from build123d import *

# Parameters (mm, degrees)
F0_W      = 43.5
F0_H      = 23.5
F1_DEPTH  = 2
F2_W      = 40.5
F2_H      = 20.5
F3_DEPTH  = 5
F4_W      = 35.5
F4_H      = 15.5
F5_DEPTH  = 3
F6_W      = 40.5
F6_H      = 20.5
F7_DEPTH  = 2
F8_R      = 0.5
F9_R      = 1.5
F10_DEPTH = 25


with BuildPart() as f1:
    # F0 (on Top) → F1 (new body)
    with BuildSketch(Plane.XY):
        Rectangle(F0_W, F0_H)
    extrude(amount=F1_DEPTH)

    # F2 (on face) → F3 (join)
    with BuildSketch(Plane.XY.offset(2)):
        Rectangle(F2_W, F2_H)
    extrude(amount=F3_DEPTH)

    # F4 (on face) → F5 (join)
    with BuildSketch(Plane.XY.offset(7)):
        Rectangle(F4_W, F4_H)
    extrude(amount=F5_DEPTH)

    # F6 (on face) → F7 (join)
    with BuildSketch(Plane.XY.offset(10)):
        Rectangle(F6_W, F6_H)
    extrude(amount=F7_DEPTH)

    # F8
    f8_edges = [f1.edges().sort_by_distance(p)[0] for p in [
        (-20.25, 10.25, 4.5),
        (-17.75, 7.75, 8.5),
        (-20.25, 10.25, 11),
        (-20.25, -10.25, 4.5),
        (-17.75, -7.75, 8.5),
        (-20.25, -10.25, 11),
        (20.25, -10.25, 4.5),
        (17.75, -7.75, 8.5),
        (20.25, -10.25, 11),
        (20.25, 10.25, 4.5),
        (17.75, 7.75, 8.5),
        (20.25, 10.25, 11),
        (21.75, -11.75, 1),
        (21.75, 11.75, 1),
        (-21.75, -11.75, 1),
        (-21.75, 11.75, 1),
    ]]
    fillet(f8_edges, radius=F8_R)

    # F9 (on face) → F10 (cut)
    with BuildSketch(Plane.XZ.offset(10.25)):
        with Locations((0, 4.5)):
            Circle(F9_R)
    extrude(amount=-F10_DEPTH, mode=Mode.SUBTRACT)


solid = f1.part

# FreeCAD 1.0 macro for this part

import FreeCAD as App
import Part
import Sketcher
Q = App.Units.Quantity


def edges_at(feature, points):
    """Names of the edges that pass closest to the given points."""
    edges = feature.Shape.Edges
    near = lambda p: min(range(len(edges)), key=lambda i: edges[i].distToShape(Part.Vertex(*p))[0])
    return sorted({f"Edge{near(p) + 1}" for p in points})

doc = App.newDocument("Part")
body = doc.addObject("PartDesign::Body", "Body")

# Sketch on XY plane
sketch1 = doc.addObject("Sketcher::SketchObject", "Sketch")
body.addObject(sketch1)
sketch1.AttachmentSupport = (doc.XY_Plane, [""])
sketch1.MapMode = "FlatFace"
sketch1.addGeometry([
    Part.LineSegment(App.Vector(-22, 12, 0), App.Vector(-22, -12, 0)),
    Part.LineSegment(App.Vector(-22, -12, 0), App.Vector(22, -12, 0)),
    Part.LineSegment(App.Vector(22, -12, 0), App.Vector(22, 12, 0)),
    Part.LineSegment(App.Vector(22, 12, 0), App.Vector(-22, 12, 0)),
], False)
sketch1.addConstraint([
    Sketcher.Constraint("Coincident", 0, 2, 1, 1),
    Sketcher.Constraint("Coincident", 1, 2, 2, 1),
    Sketcher.Constraint("Coincident", 2, 2, 3, 1),
    Sketcher.Constraint("Coincident", 3, 2, 0, 1),
    Sketcher.Constraint("Vertical", 0),
    Sketcher.Constraint("Horizontal", 1),
    Sketcher.Constraint("Vertical", 2),
    Sketcher.Constraint("Horizontal", 3),
    Sketcher.Constraint("Symmetric", 0, 2, 2, 2, -1, 1),
    Sketcher.Constraint("DistanceX", 1, 1, 1, 2, Q("43.5 mm")),
    Sketcher.Constraint("DistanceY", 0, 2, 0, 1, Q("23.5 mm")),
])
pad1 = doc.addObject("PartDesign::Pad", "Pad")
body.addObject(pad1)
pad1.Profile = sketch1
pad1.Length = 2

# Sketch on XY plane
sketch2 = doc.addObject("Sketcher::SketchObject", "Sketch001")
body.addObject(sketch2)
sketch2.AttachmentSupport = (doc.XY_Plane, [""])
sketch2.MapMode = "FlatFace"
sketch2.AttachmentOffset = App.Placement(App.Vector(0, 0, 2), App.Rotation())
sketch2.addGeometry([
    Part.LineSegment(App.Vector(-20, 10, 0), App.Vector(-20, -10, 0)),
    Part.LineSegment(App.Vector(-20, -10, 0), App.Vector(20, -10, 0)),
    Part.LineSegment(App.Vector(20, -10, 0), App.Vector(20, 10, 0)),
    Part.LineSegment(App.Vector(20, 10, 0), App.Vector(-20, 10, 0)),
], False)
sketch2.addConstraint([
    Sketcher.Constraint("Coincident", 0, 2, 1, 1),
    Sketcher.Constraint("Coincident", 1, 2, 2, 1),
    Sketcher.Constraint("Coincident", 2, 2, 3, 1),
    Sketcher.Constraint("Coincident", 3, 2, 0, 1),
    Sketcher.Constraint("Vertical", 0),
    Sketcher.Constraint("Horizontal", 1),
    Sketcher.Constraint("Vertical", 2),
    Sketcher.Constraint("Horizontal", 3),
    Sketcher.Constraint("Symmetric", 0, 2, 2, 2, -1, 1),
    Sketcher.Constraint("DistanceX", 1, 1, 1, 2, Q("40.5 mm")),
    Sketcher.Constraint("DistanceY", 0, 2, 0, 1, Q("20.5 mm")),
])
pad2 = doc.addObject("PartDesign::Pad", "Pad001")
body.addObject(pad2)
pad2.Profile = sketch2
pad2.Length = 5

# Sketch on XY plane
sketch3 = doc.addObject("Sketcher::SketchObject", "Sketch002")
body.addObject(sketch3)
sketch3.AttachmentSupport = (doc.XY_Plane, [""])
sketch3.MapMode = "FlatFace"
sketch3.AttachmentOffset = App.Placement(App.Vector(0, 0, 7), App.Rotation())
sketch3.addGeometry([
    Part.LineSegment(App.Vector(-18, 8, 0), App.Vector(-18, -8, 0)),
    Part.LineSegment(App.Vector(-18, -8, 0), App.Vector(18, -8, 0)),
    Part.LineSegment(App.Vector(18, -8, 0), App.Vector(18, 8, 0)),
    Part.LineSegment(App.Vector(18, 8, 0), App.Vector(-18, 8, 0)),
], False)
sketch3.addConstraint([
    Sketcher.Constraint("Coincident", 0, 2, 1, 1),
    Sketcher.Constraint("Coincident", 1, 2, 2, 1),
    Sketcher.Constraint("Coincident", 2, 2, 3, 1),
    Sketcher.Constraint("Coincident", 3, 2, 0, 1),
    Sketcher.Constraint("Vertical", 0),
    Sketcher.Constraint("Horizontal", 1),
    Sketcher.Constraint("Vertical", 2),
    Sketcher.Constraint("Horizontal", 3),
    Sketcher.Constraint("Symmetric", 0, 2, 2, 2, -1, 1),
    Sketcher.Constraint("DistanceX", 1, 1, 1, 2, Q("35.5 mm")),
    Sketcher.Constraint("DistanceY", 0, 2, 0, 1, Q("15.5 mm")),
])
pad3 = doc.addObject("PartDesign::Pad", "Pad002")
body.addObject(pad3)
pad3.Profile = sketch3
pad3.Length = 3

# Sketch on XY plane
sketch4 = doc.addObject("Sketcher::SketchObject", "Sketch003")
body.addObject(sketch4)
sketch4.AttachmentSupport = (doc.XY_Plane, [""])
sketch4.MapMode = "FlatFace"
sketch4.AttachmentOffset = App.Placement(App.Vector(0, 0, 10), App.Rotation())
sketch4.addGeometry([
    Part.LineSegment(App.Vector(-20, 10, 0), App.Vector(-20, -10, 0)),
    Part.LineSegment(App.Vector(-20, -10, 0), App.Vector(20, -10, 0)),
    Part.LineSegment(App.Vector(20, -10, 0), App.Vector(20, 10, 0)),
    Part.LineSegment(App.Vector(20, 10, 0), App.Vector(-20, 10, 0)),
], False)
sketch4.addConstraint([
    Sketcher.Constraint("Coincident", 0, 2, 1, 1),
    Sketcher.Constraint("Coincident", 1, 2, 2, 1),
    Sketcher.Constraint("Coincident", 2, 2, 3, 1),
    Sketcher.Constraint("Coincident", 3, 2, 0, 1),
    Sketcher.Constraint("Vertical", 0),
    Sketcher.Constraint("Horizontal", 1),
    Sketcher.Constraint("Vertical", 2),
    Sketcher.Constraint("Horizontal", 3),
    Sketcher.Constraint("Symmetric", 0, 2, 2, 2, -1, 1),
    Sketcher.Constraint("DistanceX", 1, 1, 1, 2, Q("40.5 mm")),
    Sketcher.Constraint("DistanceY", 0, 2, 0, 1, Q("20.5 mm")),
])
pad4 = doc.addObject("PartDesign::Pad", "Pad003")
body.addObject(pad4)
pad4.Profile = sketch4
pad4.Length = 2
doc.recompute()

fillet = doc.addObject("PartDesign::Fillet", "Fillet")
body.addObject(fillet)
fillet.Base = (pad4, edges_at(pad4, [
    (-20.25, 10.25, 4.5),
    (-17.75, 7.75, 8.5),
    (-20.25, 10.25, 11),
    (-20.25, -10.25, 4.5),
    (-17.75, -7.75, 8.5),
    (-20.25, -10.25, 11),
    (20.25, -10.25, 4.5),
    (17.75, -7.75, 8.5),
    (20.25, -10.25, 11),
    (20.25, 10.25, 4.5),
    (17.75, 7.75, 8.5),
    (20.25, 10.25, 11),
    (21.75, -11.75, 1),
    (21.75, 11.75, 1),
    (-21.75, -11.75, 1),
    (-21.75, 11.75, 1),
]))
fillet.Radius = 0.5

# Sketch on XZ plane
sketch5 = doc.addObject("Sketcher::SketchObject", "Sketch004")
body.addObject(sketch5)
sketch5.AttachmentSupport = (doc.XZ_Plane, [""])
sketch5.MapMode = "FlatFace"
sketch5.AttachmentOffset = App.Placement(App.Vector(0, 0, 10.25), App.Rotation())
sketch5.addGeometry(Part.Circle(App.Vector(0, 4.5, 0), App.Vector(0, 0, 1), 1.5), False)
sketch5.addConstraint([
    Sketcher.Constraint("PointOnObject", 0, 3, -2),
    Sketcher.Constraint("Diameter", 0, Q("3 mm")),
    Sketcher.Constraint("DistanceY", -1, 1, 0, 3, Q("4.5 mm")),
])
pocket1 = doc.addObject("PartDesign::Pocket", "Pocket")
body.addObject(pocket1)
pocket1.Profile = sketch5
pocket1.Length = 25

doc.recompute()
